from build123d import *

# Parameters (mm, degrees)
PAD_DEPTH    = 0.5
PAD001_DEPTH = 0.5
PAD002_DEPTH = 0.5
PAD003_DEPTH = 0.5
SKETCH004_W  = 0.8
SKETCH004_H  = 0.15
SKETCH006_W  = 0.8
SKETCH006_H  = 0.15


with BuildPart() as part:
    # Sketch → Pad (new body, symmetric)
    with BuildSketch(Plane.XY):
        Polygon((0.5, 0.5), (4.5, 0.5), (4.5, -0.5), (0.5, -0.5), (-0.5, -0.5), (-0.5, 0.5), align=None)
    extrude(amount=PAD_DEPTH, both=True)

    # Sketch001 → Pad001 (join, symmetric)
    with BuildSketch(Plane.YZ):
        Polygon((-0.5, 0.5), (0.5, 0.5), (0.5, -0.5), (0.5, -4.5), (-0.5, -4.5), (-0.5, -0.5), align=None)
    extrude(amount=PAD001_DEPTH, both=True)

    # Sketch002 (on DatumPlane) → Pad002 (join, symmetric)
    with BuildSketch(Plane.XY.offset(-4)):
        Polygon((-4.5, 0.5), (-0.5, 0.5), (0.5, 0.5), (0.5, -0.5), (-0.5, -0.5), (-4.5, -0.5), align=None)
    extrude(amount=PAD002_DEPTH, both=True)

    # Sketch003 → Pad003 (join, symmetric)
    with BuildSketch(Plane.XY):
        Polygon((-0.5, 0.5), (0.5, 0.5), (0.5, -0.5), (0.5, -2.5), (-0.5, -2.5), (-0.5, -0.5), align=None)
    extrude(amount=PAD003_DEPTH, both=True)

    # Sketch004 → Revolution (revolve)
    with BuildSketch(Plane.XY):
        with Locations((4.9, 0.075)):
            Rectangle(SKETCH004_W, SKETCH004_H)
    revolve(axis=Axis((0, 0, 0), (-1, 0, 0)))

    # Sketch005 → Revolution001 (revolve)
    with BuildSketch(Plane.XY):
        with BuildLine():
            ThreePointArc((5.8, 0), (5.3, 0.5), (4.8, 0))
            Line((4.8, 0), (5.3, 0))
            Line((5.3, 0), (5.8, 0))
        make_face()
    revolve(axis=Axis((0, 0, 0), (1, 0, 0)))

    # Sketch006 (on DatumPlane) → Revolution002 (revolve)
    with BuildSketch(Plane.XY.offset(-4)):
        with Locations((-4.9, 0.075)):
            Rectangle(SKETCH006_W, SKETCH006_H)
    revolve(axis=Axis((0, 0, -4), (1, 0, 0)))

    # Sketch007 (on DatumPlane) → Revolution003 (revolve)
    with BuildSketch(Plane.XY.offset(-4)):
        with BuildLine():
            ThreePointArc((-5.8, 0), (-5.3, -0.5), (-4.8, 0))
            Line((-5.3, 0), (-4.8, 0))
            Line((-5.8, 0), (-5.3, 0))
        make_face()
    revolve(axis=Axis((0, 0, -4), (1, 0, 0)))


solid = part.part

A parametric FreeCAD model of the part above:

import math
import FreeCAD as App
import Part
import Sketcher
Q = App.Units.Quantity

doc = App.newDocument("Part")
body = doc.addObject("PartDesign::Body", "Body")

# Sketch on XY plane
sketch1 = body.newObject("Sketcher::SketchObject", "Sketch")
sketch1.AttachmentSupport = (doc.getObject("XY_Plane"), [""])
sketch1.MapMode = "FlatFace"
sketch1.addGeometry([
    Part.LineSegment(App.Vector(4.5, 0.5, 0), App.Vector(-0.5, 0.5, 0)),
    Part.LineSegment(App.Vector(-0.5, 0.5, 0), App.Vector(-0.5, -0.5, 0)),
    Part.LineSegment(App.Vector(-0.5, -0.5, 0), App.Vector(4.5, -0.5, 0)),
    Part.LineSegment(App.Vector(4.5, -0.5, 0), App.Vector(4.5, 0.5, 0)),
], False)
sketch1.addConstraint([
    Sketcher.Constraint("Coincident", 0, 2, 1, 1),
    Sketcher.Constraint("Coincident", 1, 2, 2, 1),
    Sketcher.Constraint("Coincident", 2, 2, 3, 1),
    Sketcher.Constraint("Coincident", 3, 2, 0, 1),
    Sketcher.Constraint("Horizontal", 0),
    Sketcher.Constraint("Vertical", 1),
    Sketcher.Constraint("Horizontal", 2),
    Sketcher.Constraint("Vertical", 3),
    Sketcher.Constraint("DistanceX", 0, 2, 0, 1, Q("5 mm")),
    Sketcher.Constraint("DistanceY", 1, 2, 1, 1, Q("1 mm")),
    Sketcher.Constraint("DistanceX", 0, 2, -1, 1, Q("0.5 mm")),
    Sketcher.Constraint("DistanceY", -1, 1, 0, 2, Q("0.5 mm")),
])
pad1 = body.newObject("PartDesign::Pad", "Pad")
pad1.Profile = sketch1
pad1.Length = 1
pad1.Midplane = True

# Sketch on YZ plane
sketch2 = body.newObject("Sketcher::SketchObject", "Sketch001")
sketch2.AttachmentSupport = (doc.getObject("YZ_Plane"), [""])
sketch2.MapMode = "FlatFace"
sketch2.addGeometry([
    Part.LineSegment(App.Vector(0.5, 0.5, 0), App.Vector(-0.5, 0.5, 0)),
    Part.LineSegment(App.Vector(-0.5, 0.5, 0), App.Vector(-0.5, -4.5, 0)),
    Part.LineSegment(App.Vector(-0.5, -4.5, 0), App.Vector(0.5, -4.5, 0)),
    Part.LineSegment(App.Vector(0.5, -4.5, 0), App.Vector(0.5, 0.5, 0)),
], False)
sketch2.addConstraint([
    Sketcher.Constraint("Coincident", 0, 2, 1, 1),
    Sketcher.Constraint("Coincident", 1, 2, 2, 1),
    Sketcher.Constraint("Coincident", 2, 2, 3, 1),
    Sketcher.Constraint("Coincident", 3, 2, 0, 1),
    Sketcher.Constraint("Horizontal", 0),
    Sketcher.Constraint("Vertical", 1),
    Sketcher.Constraint("Horizontal", 2),
    Sketcher.Constraint("Vertical", 3),
    Sketcher.Constraint("DistanceX", 0, 2, 0, 1, Q("1 mm")),
    Sketcher.Constraint("DistanceY", 1, 2, 1, 1, Q("5 mm")),
    Sketcher.Constraint("DistanceX", 0, 2, -1, 1, Q("0.5 mm")),
    Sketcher.Constraint("DistanceY", -1, 1, 0, 2, Q("0.5 mm")),
])
pad2 = body.newObject("PartDesign::Pad", "Pad001")
pad2.Profile = sketch2
pad2.Length = 1
pad2.Midplane = True

# Sketch on XY plane
sketch3 = body.newObject("Sketcher::SketchObject", "Sketch002")
sketch3.AttachmentSupport = (doc.getObject("XY_Plane"), [""])
sketch3.MapMode = "FlatFace"
sketch3.AttachmentOffset = App.Placement(App.Vector(0, 0, -4), App.Rotation())
sketch3.addGeometry([
    Part.LineSegment(App.Vector(0.5, 0.5, 0), App.Vector(-4.5, 0.5, 0)),
    Part.LineSegment(App.Vector(-4.5, 0.5, 0), App.Vector(-4.5, -0.5, 0)),
    Part.LineSegment(App.Vector(-4.5, -0.5, 0), App.Vector(0.5, -0.5, 0)),
    Part.LineSegment(App.Vector(0.5, -0.5, 0), App.Vector(0.5, 0.5, 0)),
], False)
sketch3.addConstraint([
    Sketcher.Constraint("Coincident", 0, 2, 1, 1),
    Sketcher.Constraint("Coincident", 1, 2, 2, 1),
    Sketcher.Constraint("Coincident", 2, 2, 3, 1),
    Sketcher.Constraint("Coincident", 3, 2, 0, 1),
    Sketcher.Constraint("Horizontal", 0),
    Sketcher.Constraint("Vertical", 1),
    Sketcher.Constraint("Horizontal", 2),
    Sketcher.Constraint("Vertical", 3),
    Sketcher.Constraint("DistanceX", 0, 2, 0, 1, Q("5 mm")),
    Sketcher.Constraint("DistanceY", 1, 2, 1, 1, Q("1 mm")),
    Sketcher.Constraint("DistanceX", 0, 2, -1, 1, Q("4.5 mm")),
    Sketcher.Constraint("DistanceY", -1, 1, 0, 2, Q("0.5 mm")),
])
pad3 = body.newObject("PartDesign::Pad", "Pad002")
pad3.Profile = sketch3
pad3.Length = 1
pad3.Midplane = True

# Sketch on XY plane
sketch4 = body.newObject("Sketcher::SketchObject", "Sketch003")
sketch4.AttachmentSupport = (doc.getObject("XY_Plane"), [""])
sketch4.MapMode = "FlatFace"
sketch4.addGeometry([
    Part.LineSegment(App.Vector(0.5, 0.5, 0), App.Vector(-0.5, 0.5, 0)),
    Part.LineSegment(App.Vector(-0.5, 0.5, 0), App.Vector(-0.5, -2.5, 0)),
    Part.LineSegment(App.Vector(-0.5, -2.5, 0), App.Vector(0.5, -2.5, 0)),
    Part.LineSegment(App.Vector(0.5, -2.5, 0), App.Vector(0.5, 0.5, 0)),
], False)
sketch4.addConstraint([
    Sketcher.Constraint("Coincident", 0, 2, 1, 1),
    Sketcher.Constraint("Coincident", 1, 2, 2, 1),
    Sketcher.Constraint("Coincident", 2, 2, 3, 1),
    Sketcher.Constraint("Coincident", 3, 2, 0, 1),
    Sketcher.Constraint("Horizontal", 0),
    Sketcher.Constraint("Vertical", 1),
    Sketcher.Constraint("Horizontal", 2),
    Sketcher.Constraint("Vertical", 3),
    Sketcher.Constraint("DistanceX", 0, 2, 0, 1, Q("1 mm")),
    Sketcher.Constraint("DistanceY", 1, 2, 1, 1, Q("3 mm")),
    Sketcher.Constraint("DistanceX", 0, 2, -1, 1, Q("0.5 mm")),
    Sketcher.Constraint("DistanceY", -1, 1, 0, 2, Q("0.5 mm")),
])
pad4 = body.newObject("PartDesign::Pad", "Pad003")
pad4.Profile = sketch4
pad4.Length = 1
pad4.Midplane = True

# Sketch on XY plane
sketch5 = body.newObject("Sketcher::SketchObject", "Sketch004")
sketch5.AttachmentSupport = (doc.getObject("XY_Plane"), [""])
sketch5.MapMode = "FlatFace"
sketch5.addGeometry([
    Part.LineSegment(App.Vector(4.5, 0.15, 0), App.Vector(4.5, 0, 0)),
    Part.LineSegment(App.Vector(4.5, 0, 0), App.Vector(5.3, 0, 0)),
    Part.LineSegment(App.Vector(5.3, 0, 0), App.Vector(5.3, 0.15, 0)),
    Part.LineSegment(App.Vector(5.3, 0.15, 0), App.Vector(4.5, 0.15, 0)),
], False)
sketch5.addConstraint([
    Sketcher.Constraint("Coincident", 0, 2, 1, 1),
    Sketcher.Constraint("Coincident", 1, 2, 2, 1),
    Sketcher.Constraint("Coincident", 2, 2, 3, 1),
    Sketcher.Constraint("Coincident", 3, 2, 0, 1),
    Sketcher.Constraint("Vertical", 0),
    Sketcher.Constraint("Horizontal", 1),
    Sketcher.Constraint("Vertical", 2),
    Sketcher.Constraint("Horizontal", 3),
    Sketcher.Constraint("PointOnObject", 0, 2, -1),
    Sketcher.Constraint("DistanceX", 1, 1, 1, 2, Q("0.8 mm")),
    Sketcher.Constraint("DistanceY", 0, 2, 0, 1, Q("0.15 mm")),
    Sketcher.Constraint("DistanceX", -1, 1, 0, 2, Q("4.5 mm")),
])
revolution = body.newObject("PartDesign::Revolution", "Revolution")
revolution.Profile = sketch5
revolution.ReferenceAxis = (sketch5, ["H_Axis"])
revolution.Angle = 360

# Sketch on XY plane
sketch6 = body.newObject("Sketcher::SketchObject", "Sketch005")
sketch6.AttachmentSupport = (doc.getObject("XY_Plane"), [""])
sketch6.MapMode = "FlatFace"
sketch6.addGeometry([
    Part.ArcOfCircle(Part.Circle(App.Vector(5.3, 0, 0), App.Vector(0, 0, 1), 0.5), math.radians(0), math.radians(180)),
    Part.LineSegment(App.Vector(4.8, 0, 0), App.Vector(5.8, 0, 0)),
], False)
sketch6.addConstraint([
    Sketcher.Constraint("Coincident", 0, 1, 1, 2),
    Sketcher.Constraint("Coincident", 1, 1, 0, 2),
    Sketcher.Constraint("Horizontal", 1),
    Sketcher.Constraint("PointOnObject", 0, 3, -1),
    Sketcher.Constraint("PointOnObject", 0, 1, -1),
    Sketcher.Constraint("Radius", 0, Q("0.5 mm")),
    Sketcher.Constraint("DistanceX", -1, 1, 0, 3, Q("5.3 mm")),
])
revolution2 = body.newObject("PartDesign::Revolution", "Revolution001")
revolution2.Profile = sketch6
revolution2.ReferenceAxis = (sketch6, ["H_Axis"])
revolution2.Angle = 360

# Sketch on XY plane
sketch7 = body.newObject("Sketcher::SketchObject", "Sketch006")
sketch7.AttachmentSupport = (doc.getObject("XY_Plane"), [""])
sketch7.MapMode = "FlatFace"
sketch7.AttachmentOffset = App.Placement(App.Vector(0, 0, -4), App.Rotation())
sketch7.addGeometry([
    Part.LineSegment(App.Vector(-5.3, 0.15, 0), App.Vector(-5.3, 0, 0)),
    Part.LineSegment(App.Vector(-5.3, 0, 0), App.Vector(-4.5, 0, 0)),
    Part.LineSegment(App.Vector(-4.5, 0, 0), App.Vector(-4.5, 0.15, 0)),
    Part.LineSegment(App.Vector(-4.5, 0.15, 0), App.Vector(-5.3, 0.15, 0)),
], False)
sketch7.addConstraint([
    Sketcher.Constraint("Coincident", 0, 2, 1, 1),
    Sketcher.Constraint("Coincident", 1, 2, 2, 1),
    Sketcher.Constraint("Coincident", 2, 2, 3, 1),
    Sketcher.Constraint("Coincident", 3, 2, 0, 1),
    Sketcher.Constraint("Vertical", 0),
    Sketcher.Constraint("Horizontal", 1),
    Sketcher.Constraint("Vertical", 2),
    Sketcher.Constraint("Horizontal", 3),
    Sketcher.Constraint("PointOnObject", 0, 2, -1),
    Sketcher.Constraint("DistanceX", 1, 1, 1, 2, Q("0.8 mm")),
    Sketcher.Constraint("DistanceY", 0, 2, 0, 1, Q("0.15 mm")),
    Sketcher.Constraint("DistanceX", 0, 2, -1, 1, Q("5.3 mm")),
])
revolution3 = body.newObject("PartDesign::Revolution", "Revolution002")
revolution3.Profile = sketch7
revolution3.ReferenceAxis = (sketch7, ["H_Axis"])
revolution3.Angle = 360

# Sketch on XY plane
sketch8 = body.newObject("Sketcher::SketchObject", "Sketch007")
sketch8.AttachmentSupport = (doc.getObject("XY_Plane"), [""])
sketch8.MapMode = "FlatFace"
sketch8.AttachmentOffset = App.Placement(App.Vector(0, 0, -4), App.Rotation())
sketch8.addGeometry([
    Part.ArcOfCircle(Part.Circle(App.Vector(-5.3, 0, 0), App.Vector(0, 0, 1), 0.5), math.radians(180), math.radians(360)),
    Part.LineSegment(App.Vector(-4.8, 0, 0), App.Vector(-5.8, 0, 0)),
], False)
sketch8.addConstraint([
    Sketcher.Constraint("Coincident", 0, 1, 1, 2),
    Sketcher.Constraint("Coincident", 1, 1, 0, 2),
    Sketcher.Constraint("Horizontal", 1),
    Sketcher.Constraint("PointOnObject", 0, 3, -1),
    Sketcher.Constraint("PointOnObject", 0, 1, -1),
    Sketcher.Constraint("Radius", 0, Q("0.5 mm")),
    Sketcher.Constraint("DistanceX", 0, 3, -1, 1, Q("5.3 mm")),
])
revolution4 = body.newObject("PartDesign::Revolution", "Revolution003")
revolution4.Profile = sketch8
revolution4.ReferenceAxis = (sketch8, ["H_Axis"])
revolution4.Angle = 360

doc.recompute()
